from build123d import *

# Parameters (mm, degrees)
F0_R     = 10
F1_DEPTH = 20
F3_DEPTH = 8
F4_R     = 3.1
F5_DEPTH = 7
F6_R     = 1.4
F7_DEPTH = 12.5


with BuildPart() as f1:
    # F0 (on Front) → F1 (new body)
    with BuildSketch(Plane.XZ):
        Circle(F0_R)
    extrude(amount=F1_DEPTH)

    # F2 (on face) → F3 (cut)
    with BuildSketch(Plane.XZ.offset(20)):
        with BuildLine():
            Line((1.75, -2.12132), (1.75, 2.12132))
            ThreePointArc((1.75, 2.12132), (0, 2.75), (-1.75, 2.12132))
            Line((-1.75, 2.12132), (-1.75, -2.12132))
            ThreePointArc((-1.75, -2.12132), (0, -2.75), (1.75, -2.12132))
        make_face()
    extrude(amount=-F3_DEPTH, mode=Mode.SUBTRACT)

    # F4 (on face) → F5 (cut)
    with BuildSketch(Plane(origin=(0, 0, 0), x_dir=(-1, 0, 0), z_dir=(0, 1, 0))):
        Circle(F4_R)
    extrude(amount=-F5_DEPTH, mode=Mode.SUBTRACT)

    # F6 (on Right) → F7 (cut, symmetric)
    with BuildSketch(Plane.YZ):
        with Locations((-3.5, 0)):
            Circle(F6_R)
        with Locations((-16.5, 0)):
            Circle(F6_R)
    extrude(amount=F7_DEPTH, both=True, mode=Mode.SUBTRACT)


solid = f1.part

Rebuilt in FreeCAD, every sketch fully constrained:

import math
import FreeCAD as App
import Part
import Sketcher

V = App.Vector
Q = App.Units.Quantity

doc = App.newDocument("Part")
params = doc.addObject("Spreadsheet::Sheet", "Params")
for row, (alias, value) in enumerate([
    ("sketch1_diameter", "20 mm"),
    ("pad1_length", "20 mm"),
    ("sketch2_radius", "2.749999 mm"),
    ("pocket1_length", "8 mm"),
    ("sketch3_diameter", "6.2 mm"),
    ("pocket2_length", "7 mm"),
    ("sketch4_diameter", "2.8 mm"),
    ("pocket3_length", "25 mm"),
], start=1):
    params.set(f"A{row}", alias)
    params.set(f"B{row}", "=" + value)
    params.setAlias(f"B{row}", alias)

body = doc.addObject("PartDesign::Body", "Body")

sketch1 = body.newObject("Sketcher::SketchObject", "Sketch")
sketch1.AttachmentSupport = (doc.getObject("XZ_Plane"), [""])
sketch1.MapMode = "FlatFace"
sketch1.addGeometry(Part.Circle(V(0, 0, 0), V(0, 0, 1), 10), False)
sketch1.addConstraint(Sketcher.Constraint("Coincident", 0, 3, -1, 1))
sketch1.addConstraint(Sketcher.Constraint("Diameter", 0, Q("20 mm")))
sketch1.setExpression("Constraints[1]", "Params.sketch1_diameter")
pad1 = body.newObject("PartDesign::Pad", "Pad")
pad1.Profile = sketch1
pad1.setExpression("Length", "Params.pad1_length")

sketch2 = body.newObject("Sketcher::SketchObject", "Sketch001")
sketch2.AttachmentSupport = (doc.getObject("XZ_Plane"), [""])
sketch2.MapMode = "FlatFace"
sketch2.AttachmentOffset = App.Placement(V(0, 0, 20), App.Rotation())
sketch2.addGeometry(Part.LineSegment(V(1.8, -2.1, 0), V(1.8, 2.1, 0)), False)
sketch2.addGeometry(Part.ArcOfCircle(Part.Circle(V(0, 0, 0), V(0, 0, 1), 2.7), math.radians(50), math.radians(130)), False)
sketch2.addGeometry(Part.LineSegment(V(-1.8, 2.1, 0), V(-1.8, -2.1, 0)), False)
sketch2.addGeometry(Part.ArcOfCircle(Part.Circle(V(0, 0, 0), V(0, 0, 1), 2.7), math.radians(-130), math.radians(-50)), False)
sketch2.addConstraint(Sketcher.Constraint("Coincident", 0, 2, 1, 1))
sketch2.addConstraint(Sketcher.Constraint("Coincident", 1, 2, 2, 1))
sketch2.addConstraint(Sketcher.Constraint("Coincident", 2, 2, 3, 1))
sketch2.addConstraint(Sketcher.Constraint("Coincident", 3, 2, 0, 1))
sketch2.addConstraint(Sketcher.Constraint("Vertical", 0))
sketch2.addConstraint(Sketcher.Constraint("Vertical", 2))
sketch2.addConstraint(Sketcher.Constraint("Coincident", 1, 3, -1, 1))
sketch2.addConstraint(Sketcher.Constraint("Coincident", 3, 3, -1, 1))
sketch2.addConstraint(Sketcher.Constraint("Equal", 1, 3))
sketch2.addConstraint(Sketcher.Constraint("Horizontal", 0, 2, 1, 2))
sketch2.addConstraint(Sketcher.Constraint("Radius", 1, Q("2.749999 mm")))
sketch2.addConstraint(Sketcher.Constraint("DistanceX", 1, 2, 0, 2, Q("3.5 mm")))
sketch2.setExpression("Constraints[10]", "Params.sketch2_radius")
pocket1 = body.newObject("PartDesign::Pocket", "Pocket")
pocket1.Profile = sketch2
pocket1.setExpression("Length", "Params.pocket1_length")

sketch3 = body.newObject("Sketcher::SketchObject", "Sketch002")
sketch3.AttachmentSupport = (doc.getObject("XZ_Plane"), [""])
sketch3.MapMode = "FlatFace"
sketch3.addGeometry(Part.Circle(V(0, 0, 0), V(0, 0, 1), 3.1), False)
sketch3.addConstraint(Sketcher.Constraint("Coincident", 0, 3, -1, 1))
sketch3.addConstraint(Sketcher.Constraint("Diameter", 0, Q("6.2 mm")))
sketch3.setExpression("Constraints[1]", "Params.sketch3_diameter")
pocket2 = body.newObject("PartDesign::Pocket", "Pocket001")
pocket2.Profile = sketch3
pocket2.setExpression("Length", "Params.pocket2_length")
pocket2.Reversed = True

sketch4 = body.newObject("Sketcher::SketchObject", "Sketch003")
sketch4.AttachmentSupport = (doc.getObject("YZ_Plane"), [""])
sketch4.MapMode = "FlatFace"
sketch4.addGeometry(Part.Circle(V(-3.5, 0, 0), V(0, 0, 1), 1.4), False)
sketch4.addGeometry(Part.Circle(V(-16.5, 0, 0), V(0, 0, 1), 1.4), False)
sketch4.addConstraint(Sketcher.Constraint("Equal", 0, 1))
sketch4.addConstraint(Sketcher.Constraint("PointOnObject", 0, 3, -1))
sketch4.addConstraint(Sketcher.Constraint("PointOnObject", 1, 3, -1))
sketch4.addConstraint(Sketcher.Constraint("Diameter", 0, Q("2.8 mm")))
sketch4.addConstraint(Sketcher.Constraint("DistanceX", 1, 3, 0, 3, Q("13 mm")))
sketch4.addConstraint(Sketcher.Constraint("DistanceX", 0, 3, -1, 1, Q("3.5 mm")))
sketch4.setExpression("Constraints[3]", "Params.sketch4_diameter")
pocket3 = body.newObject("PartDesign::Pocket", "Pocket002")
pocket3.Profile = sketch4
pocket3.setExpression("Length", "Params.pocket3_length")
pocket3.Midplane = True

doc.recompute()
